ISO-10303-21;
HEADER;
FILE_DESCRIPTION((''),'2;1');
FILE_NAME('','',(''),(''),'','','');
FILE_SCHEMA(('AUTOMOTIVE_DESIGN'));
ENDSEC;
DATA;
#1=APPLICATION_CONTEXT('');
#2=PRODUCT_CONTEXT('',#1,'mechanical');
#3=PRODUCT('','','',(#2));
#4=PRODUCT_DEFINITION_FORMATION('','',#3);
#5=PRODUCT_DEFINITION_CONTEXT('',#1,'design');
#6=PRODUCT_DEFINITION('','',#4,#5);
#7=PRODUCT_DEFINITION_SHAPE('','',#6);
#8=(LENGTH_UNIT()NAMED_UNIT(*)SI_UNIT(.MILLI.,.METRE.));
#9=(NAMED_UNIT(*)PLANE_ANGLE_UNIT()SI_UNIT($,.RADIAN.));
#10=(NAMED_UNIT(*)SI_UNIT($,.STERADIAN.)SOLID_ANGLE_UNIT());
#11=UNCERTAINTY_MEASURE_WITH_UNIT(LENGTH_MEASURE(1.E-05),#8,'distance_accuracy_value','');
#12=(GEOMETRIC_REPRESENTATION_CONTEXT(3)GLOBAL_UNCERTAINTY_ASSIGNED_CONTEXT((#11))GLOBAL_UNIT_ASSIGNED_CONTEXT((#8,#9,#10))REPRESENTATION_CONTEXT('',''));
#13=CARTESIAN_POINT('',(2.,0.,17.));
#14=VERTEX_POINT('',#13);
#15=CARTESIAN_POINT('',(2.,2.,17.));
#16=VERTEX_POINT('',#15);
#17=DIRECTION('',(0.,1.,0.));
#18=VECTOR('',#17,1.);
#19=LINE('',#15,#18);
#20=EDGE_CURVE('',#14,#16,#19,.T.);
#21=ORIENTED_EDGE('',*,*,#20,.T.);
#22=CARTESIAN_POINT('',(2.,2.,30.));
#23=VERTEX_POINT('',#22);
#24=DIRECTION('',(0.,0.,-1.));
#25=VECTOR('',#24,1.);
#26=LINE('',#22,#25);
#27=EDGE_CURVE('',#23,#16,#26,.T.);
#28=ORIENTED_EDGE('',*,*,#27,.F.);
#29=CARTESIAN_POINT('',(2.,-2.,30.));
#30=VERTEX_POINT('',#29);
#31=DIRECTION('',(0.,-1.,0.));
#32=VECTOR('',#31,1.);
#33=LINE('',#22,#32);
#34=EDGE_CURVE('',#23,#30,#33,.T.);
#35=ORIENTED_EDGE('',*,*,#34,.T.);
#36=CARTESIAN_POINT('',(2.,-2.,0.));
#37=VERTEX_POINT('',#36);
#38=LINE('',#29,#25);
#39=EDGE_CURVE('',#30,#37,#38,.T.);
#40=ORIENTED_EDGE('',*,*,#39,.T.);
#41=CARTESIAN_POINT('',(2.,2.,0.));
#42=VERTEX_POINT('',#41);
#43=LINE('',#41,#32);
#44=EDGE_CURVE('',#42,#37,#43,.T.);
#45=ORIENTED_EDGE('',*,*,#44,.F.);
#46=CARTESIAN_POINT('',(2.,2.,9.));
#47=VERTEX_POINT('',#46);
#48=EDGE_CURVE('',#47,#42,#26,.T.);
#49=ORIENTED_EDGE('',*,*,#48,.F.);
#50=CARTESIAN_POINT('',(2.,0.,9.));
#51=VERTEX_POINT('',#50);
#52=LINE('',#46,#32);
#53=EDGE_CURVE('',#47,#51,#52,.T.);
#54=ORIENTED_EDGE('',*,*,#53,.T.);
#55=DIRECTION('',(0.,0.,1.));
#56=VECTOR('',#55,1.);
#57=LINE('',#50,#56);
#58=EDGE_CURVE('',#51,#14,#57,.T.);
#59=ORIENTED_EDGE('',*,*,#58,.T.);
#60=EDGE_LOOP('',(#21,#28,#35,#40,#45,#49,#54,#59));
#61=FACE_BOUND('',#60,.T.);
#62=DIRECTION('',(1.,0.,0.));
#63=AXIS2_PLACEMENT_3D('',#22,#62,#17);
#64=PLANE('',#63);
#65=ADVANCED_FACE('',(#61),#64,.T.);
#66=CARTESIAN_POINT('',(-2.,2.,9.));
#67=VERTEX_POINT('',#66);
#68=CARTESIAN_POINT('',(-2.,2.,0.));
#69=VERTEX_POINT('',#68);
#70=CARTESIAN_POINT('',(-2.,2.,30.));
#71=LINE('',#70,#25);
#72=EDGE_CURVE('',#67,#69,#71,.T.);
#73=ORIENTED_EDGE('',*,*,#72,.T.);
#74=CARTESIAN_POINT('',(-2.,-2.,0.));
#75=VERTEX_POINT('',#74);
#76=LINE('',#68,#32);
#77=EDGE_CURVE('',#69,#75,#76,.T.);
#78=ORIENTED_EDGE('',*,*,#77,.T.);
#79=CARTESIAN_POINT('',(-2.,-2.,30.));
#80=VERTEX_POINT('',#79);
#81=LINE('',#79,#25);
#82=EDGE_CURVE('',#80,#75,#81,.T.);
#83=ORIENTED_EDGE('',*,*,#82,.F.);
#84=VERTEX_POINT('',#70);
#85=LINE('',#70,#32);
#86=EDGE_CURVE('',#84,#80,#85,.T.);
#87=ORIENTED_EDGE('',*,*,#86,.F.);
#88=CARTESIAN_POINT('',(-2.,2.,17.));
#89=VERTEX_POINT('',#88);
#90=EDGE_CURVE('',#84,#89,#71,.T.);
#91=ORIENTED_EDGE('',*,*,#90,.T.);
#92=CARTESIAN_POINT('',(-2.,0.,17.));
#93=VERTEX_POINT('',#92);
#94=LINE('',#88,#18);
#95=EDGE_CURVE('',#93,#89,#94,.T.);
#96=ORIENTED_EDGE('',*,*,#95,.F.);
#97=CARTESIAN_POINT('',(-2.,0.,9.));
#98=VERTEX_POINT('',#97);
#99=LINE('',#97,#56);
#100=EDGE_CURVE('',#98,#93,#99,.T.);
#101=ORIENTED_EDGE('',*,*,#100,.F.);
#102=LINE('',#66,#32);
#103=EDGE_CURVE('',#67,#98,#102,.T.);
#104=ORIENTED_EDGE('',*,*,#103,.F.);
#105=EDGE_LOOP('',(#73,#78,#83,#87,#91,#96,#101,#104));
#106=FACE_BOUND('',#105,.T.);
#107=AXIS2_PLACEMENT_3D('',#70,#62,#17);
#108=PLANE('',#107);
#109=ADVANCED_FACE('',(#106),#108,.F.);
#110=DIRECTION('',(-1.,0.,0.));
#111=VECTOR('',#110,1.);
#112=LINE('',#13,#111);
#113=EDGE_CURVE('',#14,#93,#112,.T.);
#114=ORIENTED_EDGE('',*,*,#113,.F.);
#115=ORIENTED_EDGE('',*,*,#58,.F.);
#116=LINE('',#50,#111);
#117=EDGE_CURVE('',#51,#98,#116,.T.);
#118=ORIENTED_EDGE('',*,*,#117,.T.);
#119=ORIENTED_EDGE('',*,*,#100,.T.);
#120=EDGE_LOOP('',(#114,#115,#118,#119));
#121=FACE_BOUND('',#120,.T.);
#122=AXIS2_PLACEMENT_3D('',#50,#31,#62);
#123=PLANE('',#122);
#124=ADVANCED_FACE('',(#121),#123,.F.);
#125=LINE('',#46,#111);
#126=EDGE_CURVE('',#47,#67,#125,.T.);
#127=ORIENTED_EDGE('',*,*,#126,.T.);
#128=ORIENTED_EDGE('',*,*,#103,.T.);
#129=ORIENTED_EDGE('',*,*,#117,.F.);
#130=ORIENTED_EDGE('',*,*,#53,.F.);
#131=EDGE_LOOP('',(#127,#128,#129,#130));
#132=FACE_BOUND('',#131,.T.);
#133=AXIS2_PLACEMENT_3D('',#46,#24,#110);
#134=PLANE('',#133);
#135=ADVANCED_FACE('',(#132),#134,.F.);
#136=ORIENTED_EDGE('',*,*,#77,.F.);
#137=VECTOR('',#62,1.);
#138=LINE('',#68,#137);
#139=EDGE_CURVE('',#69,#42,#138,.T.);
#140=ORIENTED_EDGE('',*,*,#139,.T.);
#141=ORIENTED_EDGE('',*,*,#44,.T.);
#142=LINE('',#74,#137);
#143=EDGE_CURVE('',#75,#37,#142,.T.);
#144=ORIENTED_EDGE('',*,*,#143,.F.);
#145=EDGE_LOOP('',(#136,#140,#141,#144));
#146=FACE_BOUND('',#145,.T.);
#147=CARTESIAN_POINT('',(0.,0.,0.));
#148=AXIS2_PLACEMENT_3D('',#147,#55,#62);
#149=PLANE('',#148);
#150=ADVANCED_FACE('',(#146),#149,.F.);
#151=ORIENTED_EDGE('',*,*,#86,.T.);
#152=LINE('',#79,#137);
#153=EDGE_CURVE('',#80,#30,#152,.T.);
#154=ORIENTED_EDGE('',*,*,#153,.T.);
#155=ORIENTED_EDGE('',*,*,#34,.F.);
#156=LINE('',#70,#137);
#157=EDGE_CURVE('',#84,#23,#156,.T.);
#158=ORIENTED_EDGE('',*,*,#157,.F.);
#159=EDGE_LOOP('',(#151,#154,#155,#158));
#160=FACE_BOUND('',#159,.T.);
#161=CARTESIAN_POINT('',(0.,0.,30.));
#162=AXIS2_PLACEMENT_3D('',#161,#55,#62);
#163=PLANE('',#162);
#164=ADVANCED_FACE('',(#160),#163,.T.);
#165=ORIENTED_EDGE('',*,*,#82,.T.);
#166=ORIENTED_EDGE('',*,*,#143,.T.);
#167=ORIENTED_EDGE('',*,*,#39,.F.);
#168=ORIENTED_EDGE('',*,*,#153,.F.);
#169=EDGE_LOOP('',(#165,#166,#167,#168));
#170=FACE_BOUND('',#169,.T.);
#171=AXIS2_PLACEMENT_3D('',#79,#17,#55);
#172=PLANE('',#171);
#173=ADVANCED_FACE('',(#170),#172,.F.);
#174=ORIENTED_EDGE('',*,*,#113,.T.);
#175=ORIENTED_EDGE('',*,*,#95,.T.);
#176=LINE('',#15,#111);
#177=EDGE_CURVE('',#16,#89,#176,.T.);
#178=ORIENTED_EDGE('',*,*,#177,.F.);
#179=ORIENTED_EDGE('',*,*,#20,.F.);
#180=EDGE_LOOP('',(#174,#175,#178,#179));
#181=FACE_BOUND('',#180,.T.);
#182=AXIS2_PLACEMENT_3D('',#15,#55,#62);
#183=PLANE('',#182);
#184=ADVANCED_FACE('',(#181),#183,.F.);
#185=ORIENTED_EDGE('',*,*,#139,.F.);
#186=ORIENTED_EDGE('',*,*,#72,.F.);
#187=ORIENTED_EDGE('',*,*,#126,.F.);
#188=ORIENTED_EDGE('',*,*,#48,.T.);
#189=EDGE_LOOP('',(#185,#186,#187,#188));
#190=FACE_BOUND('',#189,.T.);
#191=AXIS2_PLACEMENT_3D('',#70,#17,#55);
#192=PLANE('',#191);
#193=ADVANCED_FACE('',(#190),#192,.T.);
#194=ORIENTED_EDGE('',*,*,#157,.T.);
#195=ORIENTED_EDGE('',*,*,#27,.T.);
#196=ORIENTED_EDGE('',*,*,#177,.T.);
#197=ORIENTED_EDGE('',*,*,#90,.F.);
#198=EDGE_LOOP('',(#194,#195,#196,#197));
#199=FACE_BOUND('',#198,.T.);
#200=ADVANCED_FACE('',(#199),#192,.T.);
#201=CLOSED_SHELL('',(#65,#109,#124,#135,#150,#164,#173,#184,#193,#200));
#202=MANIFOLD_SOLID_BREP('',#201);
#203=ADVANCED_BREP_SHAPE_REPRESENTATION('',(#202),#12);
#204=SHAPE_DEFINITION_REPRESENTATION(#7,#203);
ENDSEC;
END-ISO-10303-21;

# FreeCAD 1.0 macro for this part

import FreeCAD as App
import Part
import Sketcher


def add_polygon(sketch, points):
    """Adds a closed chain of lines whose ends are joined by coincident constraints."""
    first, n = sketch.GeometryCount, len(points)
    for a, b in zip(points, points[1:] + points[:1]):
        sketch.addGeometry(Part.LineSegment(App.Vector(*a, 0), App.Vector(*b, 0)), False)
    for i in range(n):
        sketch.addConstraint(Sketcher.Constraint("Coincident", first + i, 2, first + (i + 1) % n, 1))

doc = App.newDocument("Part")
body = doc.addObject("PartDesign::Body", "Body")

# Sketch on XY plane
sketch1 = body.newObject("Sketcher::SketchObject", "Sketch")
sketch1.AttachmentSupport = (doc.getObject("XY_Plane"), [""])
sketch1.MapMode = "FlatFace"
add_polygon(sketch1, [(-2, 2), (-2, -2), (2, -2), (2, 2)])  # lines 0-3
sketch1.addConstraint([
    Sketcher.Constraint("Vertical", 0),
    Sketcher.Constraint("Horizontal", 1),
    Sketcher.Constraint("Vertical", 2),
    Sketcher.Constraint("Horizontal", 3),
    Sketcher.Constraint("Symmetric", 0, 2, 2, 2, -1, 1),
    Sketcher.Constraint("Equal", 3, 0),
    Sketcher.Constraint("DistanceX", 1, 1, 1, 2, 4.0),
])
pad1 = body.newObject("PartDesign::Pad", "Pad")
pad1.Profile = sketch1
pad1.Length = 30

# Sketch on YZ plane
sketch2 = body.newObject("Sketcher::SketchObject", "Sketch001")
sketch2.AttachmentSupport = (doc.getObject("YZ_Plane"), [""])
sketch2.MapMode = "FlatFace"
sketch2.AttachmentOffset = App.Placement(App.Vector(0, 0, -2), App.Rotation())
add_polygon(sketch2, [(2, 9), (0, 9), (0, 17), (2, 17)])  # lines 0-3
sketch2.addConstraint([
    Sketcher.Constraint("Horizontal", 0),
    Sketcher.Constraint("Vertical", 1),
    Sketcher.Constraint("Horizontal", 2),
    Sketcher.Constraint("Vertical", 3),
    Sketcher.Constraint("PointOnObject", 0, 2, -2),
    Sketcher.Constraint("DistanceX", 0, 2, 0, 1, 2.0),
    Sketcher.Constraint("DistanceY", 1, 1, 1, 2, 8.0),
    Sketcher.Constraint("DistanceY", -1, 1, 0, 2, 9.0),
])
pocket1 = body.newObject("PartDesign::Pocket", "Pocket")
pocket1.Profile = sketch2
pocket1.Length = 4
pocket1.Reversed = True

doc.recompute()
